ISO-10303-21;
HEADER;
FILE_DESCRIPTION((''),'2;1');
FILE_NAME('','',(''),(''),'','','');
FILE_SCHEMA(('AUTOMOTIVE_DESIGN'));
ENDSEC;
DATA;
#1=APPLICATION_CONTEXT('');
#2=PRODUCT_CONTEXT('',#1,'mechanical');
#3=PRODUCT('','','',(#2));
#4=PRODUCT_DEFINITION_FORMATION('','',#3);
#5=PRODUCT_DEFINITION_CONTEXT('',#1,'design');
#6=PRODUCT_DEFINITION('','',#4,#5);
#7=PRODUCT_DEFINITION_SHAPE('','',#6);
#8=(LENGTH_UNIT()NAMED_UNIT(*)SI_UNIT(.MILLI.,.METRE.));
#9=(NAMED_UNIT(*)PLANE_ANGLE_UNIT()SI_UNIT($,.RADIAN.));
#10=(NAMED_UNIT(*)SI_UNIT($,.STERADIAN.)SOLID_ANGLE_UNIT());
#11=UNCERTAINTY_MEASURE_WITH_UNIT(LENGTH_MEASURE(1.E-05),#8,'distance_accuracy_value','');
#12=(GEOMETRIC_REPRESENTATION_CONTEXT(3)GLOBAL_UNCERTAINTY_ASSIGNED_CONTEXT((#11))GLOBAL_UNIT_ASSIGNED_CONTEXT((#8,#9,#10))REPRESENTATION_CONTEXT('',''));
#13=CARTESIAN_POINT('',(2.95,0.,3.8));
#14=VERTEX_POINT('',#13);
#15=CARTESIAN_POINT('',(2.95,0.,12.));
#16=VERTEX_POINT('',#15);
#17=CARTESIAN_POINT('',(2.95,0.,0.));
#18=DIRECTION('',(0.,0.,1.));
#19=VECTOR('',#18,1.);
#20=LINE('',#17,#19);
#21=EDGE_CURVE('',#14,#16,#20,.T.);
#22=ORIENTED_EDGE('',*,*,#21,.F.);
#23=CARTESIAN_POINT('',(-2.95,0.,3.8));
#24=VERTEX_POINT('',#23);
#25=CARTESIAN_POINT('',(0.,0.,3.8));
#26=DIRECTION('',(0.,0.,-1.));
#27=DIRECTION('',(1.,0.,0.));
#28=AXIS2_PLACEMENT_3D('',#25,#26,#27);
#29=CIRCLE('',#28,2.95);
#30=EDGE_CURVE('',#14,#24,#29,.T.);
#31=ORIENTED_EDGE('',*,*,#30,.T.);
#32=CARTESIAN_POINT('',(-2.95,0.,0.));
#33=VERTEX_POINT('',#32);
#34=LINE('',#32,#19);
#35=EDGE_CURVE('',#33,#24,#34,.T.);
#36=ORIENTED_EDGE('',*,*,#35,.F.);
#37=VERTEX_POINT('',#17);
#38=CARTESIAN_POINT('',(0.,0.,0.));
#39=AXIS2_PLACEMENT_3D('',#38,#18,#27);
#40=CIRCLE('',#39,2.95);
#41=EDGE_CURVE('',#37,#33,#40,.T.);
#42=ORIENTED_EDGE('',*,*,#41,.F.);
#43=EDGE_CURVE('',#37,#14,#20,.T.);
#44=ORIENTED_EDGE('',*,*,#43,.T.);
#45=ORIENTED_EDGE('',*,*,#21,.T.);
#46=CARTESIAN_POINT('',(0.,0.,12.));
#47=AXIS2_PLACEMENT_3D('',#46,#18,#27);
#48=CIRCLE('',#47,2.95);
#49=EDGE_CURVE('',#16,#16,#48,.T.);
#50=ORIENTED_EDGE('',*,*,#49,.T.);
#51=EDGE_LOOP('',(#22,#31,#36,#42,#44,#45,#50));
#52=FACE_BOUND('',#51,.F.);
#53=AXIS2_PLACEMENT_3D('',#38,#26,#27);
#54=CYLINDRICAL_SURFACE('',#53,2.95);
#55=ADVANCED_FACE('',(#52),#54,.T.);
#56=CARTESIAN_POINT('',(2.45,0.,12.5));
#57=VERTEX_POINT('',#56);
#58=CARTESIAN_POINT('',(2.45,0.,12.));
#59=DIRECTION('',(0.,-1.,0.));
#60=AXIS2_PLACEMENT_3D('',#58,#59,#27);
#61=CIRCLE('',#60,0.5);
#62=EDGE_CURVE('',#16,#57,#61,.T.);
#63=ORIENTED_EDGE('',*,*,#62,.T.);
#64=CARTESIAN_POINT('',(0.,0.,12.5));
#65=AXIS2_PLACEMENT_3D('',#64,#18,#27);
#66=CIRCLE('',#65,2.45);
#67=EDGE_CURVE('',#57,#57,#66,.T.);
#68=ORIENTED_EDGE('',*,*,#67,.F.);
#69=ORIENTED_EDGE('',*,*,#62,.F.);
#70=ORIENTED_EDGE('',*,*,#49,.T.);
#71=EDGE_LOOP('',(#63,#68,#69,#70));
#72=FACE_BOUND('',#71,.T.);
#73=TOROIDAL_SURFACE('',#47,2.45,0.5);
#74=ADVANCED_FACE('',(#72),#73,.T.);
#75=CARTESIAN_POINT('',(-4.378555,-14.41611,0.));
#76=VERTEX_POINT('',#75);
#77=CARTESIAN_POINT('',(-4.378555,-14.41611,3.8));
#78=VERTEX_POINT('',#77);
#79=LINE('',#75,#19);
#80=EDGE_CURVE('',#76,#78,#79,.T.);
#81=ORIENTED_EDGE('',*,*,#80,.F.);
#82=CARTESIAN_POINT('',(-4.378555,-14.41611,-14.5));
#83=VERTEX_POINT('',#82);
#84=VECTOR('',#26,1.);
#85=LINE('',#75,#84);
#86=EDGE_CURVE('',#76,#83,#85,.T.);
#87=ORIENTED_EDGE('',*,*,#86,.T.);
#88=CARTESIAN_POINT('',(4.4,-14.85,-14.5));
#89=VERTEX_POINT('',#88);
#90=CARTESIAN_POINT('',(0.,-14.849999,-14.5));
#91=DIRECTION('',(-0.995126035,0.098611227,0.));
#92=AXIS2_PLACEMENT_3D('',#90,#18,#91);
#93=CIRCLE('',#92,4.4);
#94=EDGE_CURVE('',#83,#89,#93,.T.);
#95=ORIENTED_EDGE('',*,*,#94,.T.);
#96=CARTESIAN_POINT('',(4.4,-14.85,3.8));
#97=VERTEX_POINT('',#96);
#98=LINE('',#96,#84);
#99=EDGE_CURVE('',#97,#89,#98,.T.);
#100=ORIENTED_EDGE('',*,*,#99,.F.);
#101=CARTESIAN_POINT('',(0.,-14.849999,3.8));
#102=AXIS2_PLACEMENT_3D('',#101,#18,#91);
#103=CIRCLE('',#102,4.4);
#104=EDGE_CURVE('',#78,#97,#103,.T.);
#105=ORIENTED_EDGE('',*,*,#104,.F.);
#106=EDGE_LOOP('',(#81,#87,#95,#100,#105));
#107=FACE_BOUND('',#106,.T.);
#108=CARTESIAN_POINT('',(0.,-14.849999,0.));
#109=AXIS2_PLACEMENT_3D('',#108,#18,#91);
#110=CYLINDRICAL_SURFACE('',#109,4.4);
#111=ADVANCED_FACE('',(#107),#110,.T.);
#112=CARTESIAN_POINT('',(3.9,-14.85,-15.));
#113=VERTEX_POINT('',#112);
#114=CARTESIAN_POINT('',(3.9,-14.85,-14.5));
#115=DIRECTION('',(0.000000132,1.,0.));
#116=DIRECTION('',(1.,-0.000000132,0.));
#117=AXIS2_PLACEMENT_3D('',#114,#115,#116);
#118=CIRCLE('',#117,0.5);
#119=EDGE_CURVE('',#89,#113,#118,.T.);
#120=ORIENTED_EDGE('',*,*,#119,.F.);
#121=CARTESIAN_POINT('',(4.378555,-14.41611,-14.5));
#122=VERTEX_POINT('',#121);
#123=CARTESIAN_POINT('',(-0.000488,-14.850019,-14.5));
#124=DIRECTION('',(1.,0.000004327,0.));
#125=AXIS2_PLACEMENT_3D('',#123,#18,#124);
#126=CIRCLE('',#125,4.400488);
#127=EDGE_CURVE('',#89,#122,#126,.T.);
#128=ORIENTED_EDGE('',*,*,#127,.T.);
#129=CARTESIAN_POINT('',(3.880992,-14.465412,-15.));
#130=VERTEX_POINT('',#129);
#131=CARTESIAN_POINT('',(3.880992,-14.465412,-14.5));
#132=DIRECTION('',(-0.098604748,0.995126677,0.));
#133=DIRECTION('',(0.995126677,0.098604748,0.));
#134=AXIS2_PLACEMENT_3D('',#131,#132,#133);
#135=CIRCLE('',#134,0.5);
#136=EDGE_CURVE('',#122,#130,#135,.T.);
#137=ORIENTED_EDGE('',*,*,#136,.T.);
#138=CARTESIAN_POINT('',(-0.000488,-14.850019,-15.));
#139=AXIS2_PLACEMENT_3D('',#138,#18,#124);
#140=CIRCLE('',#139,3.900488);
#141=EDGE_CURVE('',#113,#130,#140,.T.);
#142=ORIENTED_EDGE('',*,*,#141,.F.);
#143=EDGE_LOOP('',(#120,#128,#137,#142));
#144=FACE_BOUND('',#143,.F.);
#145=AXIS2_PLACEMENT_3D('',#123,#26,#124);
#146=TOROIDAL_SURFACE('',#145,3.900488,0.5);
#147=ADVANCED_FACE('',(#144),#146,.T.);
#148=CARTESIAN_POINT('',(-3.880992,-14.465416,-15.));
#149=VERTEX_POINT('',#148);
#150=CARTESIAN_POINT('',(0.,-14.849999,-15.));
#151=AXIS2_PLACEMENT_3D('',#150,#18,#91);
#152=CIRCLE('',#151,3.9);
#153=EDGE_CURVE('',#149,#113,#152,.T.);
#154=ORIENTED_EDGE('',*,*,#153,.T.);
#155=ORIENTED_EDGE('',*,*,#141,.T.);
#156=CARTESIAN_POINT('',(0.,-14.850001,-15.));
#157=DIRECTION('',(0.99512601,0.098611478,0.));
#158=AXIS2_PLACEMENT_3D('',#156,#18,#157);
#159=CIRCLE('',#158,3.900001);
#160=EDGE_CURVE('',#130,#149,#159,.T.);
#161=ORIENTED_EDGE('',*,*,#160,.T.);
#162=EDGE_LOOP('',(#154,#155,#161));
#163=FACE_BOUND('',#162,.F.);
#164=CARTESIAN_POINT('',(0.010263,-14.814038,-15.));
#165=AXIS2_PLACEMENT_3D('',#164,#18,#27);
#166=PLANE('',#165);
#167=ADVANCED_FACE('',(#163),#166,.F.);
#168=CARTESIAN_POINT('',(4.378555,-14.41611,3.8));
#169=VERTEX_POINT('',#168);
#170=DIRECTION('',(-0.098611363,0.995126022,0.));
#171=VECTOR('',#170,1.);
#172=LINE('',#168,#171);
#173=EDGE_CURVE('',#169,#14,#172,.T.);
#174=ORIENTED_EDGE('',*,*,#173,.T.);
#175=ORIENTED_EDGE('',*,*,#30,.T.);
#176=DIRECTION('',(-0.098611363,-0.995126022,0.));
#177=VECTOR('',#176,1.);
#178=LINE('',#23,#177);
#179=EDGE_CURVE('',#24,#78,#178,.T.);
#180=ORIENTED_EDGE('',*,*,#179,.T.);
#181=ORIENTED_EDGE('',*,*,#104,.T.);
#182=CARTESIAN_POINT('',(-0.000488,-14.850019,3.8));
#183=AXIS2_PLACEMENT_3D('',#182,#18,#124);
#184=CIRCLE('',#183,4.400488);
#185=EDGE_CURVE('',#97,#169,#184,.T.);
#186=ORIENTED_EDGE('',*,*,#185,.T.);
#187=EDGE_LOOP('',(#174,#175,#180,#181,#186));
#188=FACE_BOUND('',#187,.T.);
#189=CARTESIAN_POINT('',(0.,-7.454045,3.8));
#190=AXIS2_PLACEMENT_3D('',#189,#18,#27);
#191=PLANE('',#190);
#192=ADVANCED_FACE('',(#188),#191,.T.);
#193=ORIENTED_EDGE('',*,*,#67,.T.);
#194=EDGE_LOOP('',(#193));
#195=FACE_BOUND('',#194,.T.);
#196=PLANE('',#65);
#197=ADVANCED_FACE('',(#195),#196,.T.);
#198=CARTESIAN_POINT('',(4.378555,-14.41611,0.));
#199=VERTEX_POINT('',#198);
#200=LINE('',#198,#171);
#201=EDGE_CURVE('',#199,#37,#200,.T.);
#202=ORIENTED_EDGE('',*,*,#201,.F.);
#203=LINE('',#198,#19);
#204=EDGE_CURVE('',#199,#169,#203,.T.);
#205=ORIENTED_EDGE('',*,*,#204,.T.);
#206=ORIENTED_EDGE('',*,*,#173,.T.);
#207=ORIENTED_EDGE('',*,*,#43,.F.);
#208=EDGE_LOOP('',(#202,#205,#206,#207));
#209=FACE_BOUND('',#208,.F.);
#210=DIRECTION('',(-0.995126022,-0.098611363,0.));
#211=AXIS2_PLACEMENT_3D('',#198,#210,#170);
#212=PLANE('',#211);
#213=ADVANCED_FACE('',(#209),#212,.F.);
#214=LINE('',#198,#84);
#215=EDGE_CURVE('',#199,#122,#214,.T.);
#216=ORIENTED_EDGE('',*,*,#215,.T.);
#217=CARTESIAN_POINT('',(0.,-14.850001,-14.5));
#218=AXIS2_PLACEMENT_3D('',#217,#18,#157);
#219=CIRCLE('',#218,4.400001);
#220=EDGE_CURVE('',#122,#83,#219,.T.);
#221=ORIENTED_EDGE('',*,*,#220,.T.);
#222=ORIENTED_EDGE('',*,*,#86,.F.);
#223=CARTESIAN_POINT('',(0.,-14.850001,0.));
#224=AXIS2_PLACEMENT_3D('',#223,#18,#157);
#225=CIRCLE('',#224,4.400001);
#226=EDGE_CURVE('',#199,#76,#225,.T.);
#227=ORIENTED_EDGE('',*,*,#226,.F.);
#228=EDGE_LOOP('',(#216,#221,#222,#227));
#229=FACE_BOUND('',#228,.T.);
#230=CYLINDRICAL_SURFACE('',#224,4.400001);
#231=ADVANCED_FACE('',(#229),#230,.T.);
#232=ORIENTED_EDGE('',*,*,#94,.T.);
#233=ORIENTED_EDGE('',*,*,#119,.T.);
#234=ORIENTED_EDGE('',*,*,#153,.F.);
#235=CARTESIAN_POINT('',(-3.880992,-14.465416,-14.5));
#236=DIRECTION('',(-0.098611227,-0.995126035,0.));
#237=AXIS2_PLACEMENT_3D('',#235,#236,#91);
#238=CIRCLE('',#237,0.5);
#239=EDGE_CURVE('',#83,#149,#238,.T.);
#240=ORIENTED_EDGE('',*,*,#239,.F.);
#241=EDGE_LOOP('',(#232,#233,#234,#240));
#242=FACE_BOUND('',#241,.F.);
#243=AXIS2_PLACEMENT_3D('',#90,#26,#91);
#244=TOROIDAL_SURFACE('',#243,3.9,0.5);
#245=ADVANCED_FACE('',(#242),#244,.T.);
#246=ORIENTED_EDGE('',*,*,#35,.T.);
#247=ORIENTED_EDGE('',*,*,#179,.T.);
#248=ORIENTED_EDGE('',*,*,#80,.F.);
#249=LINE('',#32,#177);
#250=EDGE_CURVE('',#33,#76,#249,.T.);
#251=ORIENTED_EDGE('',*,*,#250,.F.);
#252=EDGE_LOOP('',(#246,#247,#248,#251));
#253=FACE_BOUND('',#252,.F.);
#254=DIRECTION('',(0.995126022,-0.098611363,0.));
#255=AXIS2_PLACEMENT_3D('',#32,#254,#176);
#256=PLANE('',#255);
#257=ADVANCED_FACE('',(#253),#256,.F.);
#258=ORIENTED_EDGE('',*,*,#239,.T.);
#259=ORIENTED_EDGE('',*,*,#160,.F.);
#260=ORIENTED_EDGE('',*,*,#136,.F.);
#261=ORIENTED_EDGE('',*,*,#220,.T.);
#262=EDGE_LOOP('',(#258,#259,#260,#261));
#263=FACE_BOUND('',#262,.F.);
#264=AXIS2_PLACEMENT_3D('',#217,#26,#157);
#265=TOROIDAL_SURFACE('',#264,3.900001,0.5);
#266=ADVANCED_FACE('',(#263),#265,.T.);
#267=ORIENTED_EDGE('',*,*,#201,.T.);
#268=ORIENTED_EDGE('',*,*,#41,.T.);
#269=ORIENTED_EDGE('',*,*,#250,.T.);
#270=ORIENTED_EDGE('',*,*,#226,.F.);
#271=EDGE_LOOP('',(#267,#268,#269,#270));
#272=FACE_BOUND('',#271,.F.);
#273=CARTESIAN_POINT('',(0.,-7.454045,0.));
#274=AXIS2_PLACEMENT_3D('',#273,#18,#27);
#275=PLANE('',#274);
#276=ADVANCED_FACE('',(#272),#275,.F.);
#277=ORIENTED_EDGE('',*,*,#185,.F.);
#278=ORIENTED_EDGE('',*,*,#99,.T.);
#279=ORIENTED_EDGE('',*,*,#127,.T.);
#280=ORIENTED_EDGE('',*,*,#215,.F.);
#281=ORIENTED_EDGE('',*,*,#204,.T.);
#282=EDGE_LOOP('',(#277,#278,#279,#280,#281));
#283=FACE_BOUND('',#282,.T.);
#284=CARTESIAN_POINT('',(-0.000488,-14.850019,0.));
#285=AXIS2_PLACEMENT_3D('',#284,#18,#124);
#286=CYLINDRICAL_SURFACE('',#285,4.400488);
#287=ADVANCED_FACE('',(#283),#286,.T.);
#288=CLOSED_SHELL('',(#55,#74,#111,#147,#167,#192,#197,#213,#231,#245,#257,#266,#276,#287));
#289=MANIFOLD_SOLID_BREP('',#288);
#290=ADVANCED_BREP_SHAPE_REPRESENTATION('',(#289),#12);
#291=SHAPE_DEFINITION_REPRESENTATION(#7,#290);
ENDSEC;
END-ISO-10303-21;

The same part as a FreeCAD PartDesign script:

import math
import FreeCAD as App
import Part
import Sketcher
from FreeCAD import Vector
Q = App.Units.Quantity


def edges_at(feature, points):
    """Names of the edges that pass closest to the given points."""
    edges = feature.Shape.Edges
    near = lambda p: min(range(len(edges)), key=lambda i: edges[i].distToShape(Part.Vertex(*p))[0])
    return sorted({f"Edge{near(p) + 1}" for p in points})

doc = App.newDocument("Part")
body = doc.addObject("PartDesign::Body", "Body")

# Sketch on XY plane
sketch1 = body.newObject("Sketcher::SketchObject", "Sketch")
sketch1.AttachmentSupport = (doc.getObject("XY_Plane"), [""])
sketch1.MapMode = "FlatFace"
sketch1.addGeometry([
    Part.LineSegment(Vector(4.38, -14.42, 0), Vector(2.95, 0, 0)),  # 0
    Part.ArcOfCircle(Part.Circle(Vector(0, 0, 0), Vector(0, 0, 1), 2.95), math.radians(0), math.radians(180)),  # 1
    Part.LineSegment(Vector(-2.95, 0, 0), Vector(-4.38, -14.42, 0)),  # 2
    Part.ArcOfCircle(Part.Circle(Vector(0, -14.85, 0), Vector(0, 0, 1), 4.4), math.radians(174), math.radians(360)),  # 3
    Part.ArcOfCircle(Part.Circle(Vector(0, -14.85, 0), Vector(0, 0, 1), 4.4), math.radians(0), math.radians(5.66)),  # 4
], False)
sketch1.addConstraint([
    Sketcher.Constraint("Coincident", 0, 2, 1, 1),
    Sketcher.Constraint("Coincident", 1, 2, 2, 1),
    Sketcher.Constraint("Tangent", 2, 2, 3, 1),
    Sketcher.Constraint("Coincident", 3, 2, 4, 1),
    Sketcher.Constraint("Coincident", 4, 2, 0, 1),
    Sketcher.Constraint("Coincident", 1, 3, -1, 1),
    Sketcher.Constraint("Symmetric", 2, 2, 4, 2, -2),
    Sketcher.Constraint("PointOnObject", 3, 3, -2),
    Sketcher.Constraint("PointOnObject", 0, 2, -1),
    Sketcher.Constraint("PointOnObject", 1, 2, -1),
    Sketcher.Constraint("Radius", 3, Q("4.4 mm")),
    Sketcher.Constraint("Radius", 1, Q("2.95 mm")),
    Sketcher.Constraint("DistanceY", 3, 3, -1, 1, Q("14.849999 mm")),
    Sketcher.Constraint("DistanceY", 3, 2, -1, 1, Q("14.85 mm")),
    Sketcher.Constraint("Radius", 4, Q("4.400488 mm")),
])
pad1 = body.newObject("PartDesign::Pad", "Pad")
pad1.Profile = sketch1
pad1.Length = 3.8

# Sketch on XY plane
sketch2 = body.newObject("Sketcher::SketchObject", "Sketch001")
sketch2.AttachmentSupport = (doc.getObject("XY_Plane"), [""])
sketch2.MapMode = "FlatFace"
sketch2.addGeometry(Part.Circle(Vector(0, 0, 0), Vector(0, 0, 1), 3), False)
sketch2.addConstraint([
    Sketcher.Constraint("Coincident", 0, 3, -1, 1),
    Sketcher.Constraint("Diameter", 0, Q("5.9 mm")),
])
pad2 = body.newObject("PartDesign::Pad", "Pad001")
pad2.Profile = sketch2
pad2.Length = 12.5

# Sketch on XY plane
sketch3 = body.newObject("Sketcher::SketchObject", "Sketch002")
sketch3.AttachmentSupport = (doc.getObject("XY_Plane"), [""])
sketch3.MapMode = "FlatFace"
sketch3.addGeometry([
    Part.ArcOfCircle(Part.Circle(Vector(0, -14.85, 0), Vector(0, 0, 1), 4.4), math.radians(0), math.radians(5.66)),
    Part.ArcOfCircle(Part.Circle(Vector(0, -14.85, 0), Vector(0, 0, 1), 4.4), math.radians(6), math.radians(174)),
    Part.ArcOfCircle(Part.Circle(Vector(0, -14.85, 0), Vector(0, 0, 1), 4.4), math.radians(174), math.radians(360)),
], False)
sketch3.addConstraint([
    Sketcher.Constraint("Coincident", 0, 2, 1, 1),
    Sketcher.Constraint("Tangent", 1, 2, 2, 1),
    Sketcher.Constraint("Coincident", 2, 2, 0, 1),
    Sketcher.Constraint("Equal", 1, 2),
    Sketcher.Constraint("Symmetric", 0, 2, 1, 2, -2),
    Sketcher.Constraint("Horizontal", 1, 3, 2, 2),
    Sketcher.Constraint("Radius", 1, Q("4.400001 mm")),
    Sketcher.Constraint("DistanceY", 1, 3, -1, 1, Q("14.850001 mm")),
    Sketcher.Constraint("Radius", 0, Q("4.400488 mm")),
    Sketcher.Constraint("DistanceY", 0, 2, -1, 1, Q("14.41611 mm")),
])
pad3 = body.newObject("PartDesign::Pad", "Pad002")
pad3.Profile = sketch3
pad3.Length = 15
pad3.Reversed = True
doc.recompute()

fillet = body.newObject("PartDesign::Fillet", "Fillet")
fillet.Base = (pad3, edges_at(pad3, [(-2.95, 0, 12.5), (-0.217, -19.245, -15)]))
fillet.Radius = 0.5

doc.recompute()
